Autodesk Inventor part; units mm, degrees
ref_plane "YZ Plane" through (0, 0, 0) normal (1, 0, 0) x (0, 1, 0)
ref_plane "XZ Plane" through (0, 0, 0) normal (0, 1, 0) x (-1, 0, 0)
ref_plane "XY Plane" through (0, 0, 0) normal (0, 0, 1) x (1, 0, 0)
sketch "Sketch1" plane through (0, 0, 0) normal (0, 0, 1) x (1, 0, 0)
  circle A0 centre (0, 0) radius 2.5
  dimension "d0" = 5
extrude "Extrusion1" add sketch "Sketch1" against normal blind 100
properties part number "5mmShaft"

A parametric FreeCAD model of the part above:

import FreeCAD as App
import Part
import Sketcher

V = App.Vector
Q = App.Units.Quantity

doc = App.newDocument("Part")
body = doc.addObject("PartDesign::Body", "Body")

sketch1 = doc.addObject("Sketcher::SketchObject", "Sketch")
body.addObject(sketch1)
sketch1.AttachmentSupport = (doc.XY_Plane, [""])
sketch1.MapMode = "FlatFace"
sketch1.addGeometry(Part.Circle(V(0, 0, 0), V(0, 0, 1), 2.5), False)
sketch1.addConstraint(Sketcher.Constraint("Coincident", 0, 3, -1, 1))
sketch1.addConstraint(Sketcher.Constraint("Diameter", 0, Q("5 mm")))
pad1 = doc.addObject("PartDesign::Pad", "Pad")
body.addObject(pad1)
pad1.Profile = sketch1
pad1.Length = 100
pad1.Reversed = True

doc.recompute()
